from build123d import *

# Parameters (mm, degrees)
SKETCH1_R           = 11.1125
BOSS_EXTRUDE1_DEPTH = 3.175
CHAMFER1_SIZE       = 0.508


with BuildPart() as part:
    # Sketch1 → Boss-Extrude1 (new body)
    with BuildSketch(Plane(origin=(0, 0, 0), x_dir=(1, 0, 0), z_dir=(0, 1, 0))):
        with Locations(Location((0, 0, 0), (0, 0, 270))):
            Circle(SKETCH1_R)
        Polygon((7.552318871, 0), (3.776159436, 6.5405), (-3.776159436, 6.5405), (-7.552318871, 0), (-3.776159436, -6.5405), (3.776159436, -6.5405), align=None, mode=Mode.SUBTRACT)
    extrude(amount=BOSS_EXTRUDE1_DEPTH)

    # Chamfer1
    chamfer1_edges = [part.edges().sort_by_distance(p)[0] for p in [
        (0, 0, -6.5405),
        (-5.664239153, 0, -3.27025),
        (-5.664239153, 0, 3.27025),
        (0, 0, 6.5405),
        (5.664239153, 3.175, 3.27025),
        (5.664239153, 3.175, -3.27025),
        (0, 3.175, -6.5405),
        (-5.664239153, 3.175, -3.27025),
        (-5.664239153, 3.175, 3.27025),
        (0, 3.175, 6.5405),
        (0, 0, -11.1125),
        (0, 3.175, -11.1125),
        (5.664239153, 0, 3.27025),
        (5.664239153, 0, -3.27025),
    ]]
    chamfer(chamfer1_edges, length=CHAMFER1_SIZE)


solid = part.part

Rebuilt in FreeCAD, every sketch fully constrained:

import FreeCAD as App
import Part
import Sketcher

V = App.Vector
Q = App.Units.Quantity


def edges_at(feature, points):
    """Names of the edges that pass closest to the given points."""
    edges = feature.Shape.Edges
    near = lambda p: min(range(len(edges)), key=lambda i: edges[i].distToShape(Part.Vertex(*p))[0])
    return sorted({f"Edge{near(p) + 1}" for p in points})


def add_polygon(sketch, points):
    """Adds a closed chain of lines whose ends are joined by coincident constraints."""
    first, n = sketch.GeometryCount, len(points)
    for a, b in zip(points, points[1:] + points[:1]):
        sketch.addGeometry(Part.LineSegment(App.Vector(*a, 0), App.Vector(*b, 0)), False)
    for i in range(n):
        sketch.addConstraint(Sketcher.Constraint("Coincident", first + i, 2, first + (i + 1) % n, 1))

doc = App.newDocument("Part")
body = doc.addObject("PartDesign::Body", "Body")

# Sketch on XZ plane
sketch1 = body.newObject("Sketcher::SketchObject", "Sketch")
sketch1.AttachmentSupport = (doc.getObject("XZ_Plane"), [""])
sketch1.MapMode = "FlatFace"
sketch1.addGeometry(Part.Circle(V(0, 0, 0), V(0, 0, 1), 11), False)  # 0
add_polygon(sketch1, [(4, -7), (8, 0), (4, 7), (-4, 7), (-8, 0), (-4, -7)])  # lines 1-6
sketch1.addConstraint([
    Sketcher.Constraint("Horizontal", 3),
    Sketcher.Constraint("Horizontal", 6),
    Sketcher.Constraint("Coincident", 0, 3, -1, 1),
    Sketcher.Constraint("Symmetric", 1, 2, 4, 2, -1, 1),
    Sketcher.Constraint("Symmetric", 2, 2, 5, 2, -1, 1),
    Sketcher.Constraint("PointOnObject", 1, 2, -1),
    Sketcher.Constraint("Parallel", 1, 4),
    Sketcher.Constraint("Vertical", 3, 2, 5, 2),
    Sketcher.Constraint("Diameter", 0, Q("0.875 in")),
    Sketcher.Constraint("Angle", 1, Q("60 deg")),
    Sketcher.Constraint("DistanceY", 5, 2, 3, 2, Q("0.515 in")),
    Sketcher.Constraint("DistanceX", 3, 2, 3, 1, Q("7.552319 mm")),
])
pad1 = body.newObject("PartDesign::Pad", "Pad")
pad1.Profile = sketch1
pad1.Length = Q("0.125 in")
pad1.Reversed = True
doc.recompute()

chamfer = body.newObject("PartDesign::Chamfer", "Chamfer")
chamfer.Base = (pad1, edges_at(pad1, [
    (0, 0, -6.54),
    (-5.664, 0, -3.27),
    (-5.664, 0, 3.27),
    (0, 0, 6.54),
    (5.664, 3.175, 3.27),
    (5.664, 3.175, -3.27),
    (0, 3.175, -6.54),
    (-5.664, 3.175, -3.27),
    (-5.664, 3.175, 3.27),
    (0, 3.175, 6.54),
    (0, 0, -11.113),
    (0, 3.175, -11.113),
    (5.664, 0, 3.27),
    (5.664, 0, -3.27),
]))
chamfer.Size = Q("0.02 in")

doc.recompute()
